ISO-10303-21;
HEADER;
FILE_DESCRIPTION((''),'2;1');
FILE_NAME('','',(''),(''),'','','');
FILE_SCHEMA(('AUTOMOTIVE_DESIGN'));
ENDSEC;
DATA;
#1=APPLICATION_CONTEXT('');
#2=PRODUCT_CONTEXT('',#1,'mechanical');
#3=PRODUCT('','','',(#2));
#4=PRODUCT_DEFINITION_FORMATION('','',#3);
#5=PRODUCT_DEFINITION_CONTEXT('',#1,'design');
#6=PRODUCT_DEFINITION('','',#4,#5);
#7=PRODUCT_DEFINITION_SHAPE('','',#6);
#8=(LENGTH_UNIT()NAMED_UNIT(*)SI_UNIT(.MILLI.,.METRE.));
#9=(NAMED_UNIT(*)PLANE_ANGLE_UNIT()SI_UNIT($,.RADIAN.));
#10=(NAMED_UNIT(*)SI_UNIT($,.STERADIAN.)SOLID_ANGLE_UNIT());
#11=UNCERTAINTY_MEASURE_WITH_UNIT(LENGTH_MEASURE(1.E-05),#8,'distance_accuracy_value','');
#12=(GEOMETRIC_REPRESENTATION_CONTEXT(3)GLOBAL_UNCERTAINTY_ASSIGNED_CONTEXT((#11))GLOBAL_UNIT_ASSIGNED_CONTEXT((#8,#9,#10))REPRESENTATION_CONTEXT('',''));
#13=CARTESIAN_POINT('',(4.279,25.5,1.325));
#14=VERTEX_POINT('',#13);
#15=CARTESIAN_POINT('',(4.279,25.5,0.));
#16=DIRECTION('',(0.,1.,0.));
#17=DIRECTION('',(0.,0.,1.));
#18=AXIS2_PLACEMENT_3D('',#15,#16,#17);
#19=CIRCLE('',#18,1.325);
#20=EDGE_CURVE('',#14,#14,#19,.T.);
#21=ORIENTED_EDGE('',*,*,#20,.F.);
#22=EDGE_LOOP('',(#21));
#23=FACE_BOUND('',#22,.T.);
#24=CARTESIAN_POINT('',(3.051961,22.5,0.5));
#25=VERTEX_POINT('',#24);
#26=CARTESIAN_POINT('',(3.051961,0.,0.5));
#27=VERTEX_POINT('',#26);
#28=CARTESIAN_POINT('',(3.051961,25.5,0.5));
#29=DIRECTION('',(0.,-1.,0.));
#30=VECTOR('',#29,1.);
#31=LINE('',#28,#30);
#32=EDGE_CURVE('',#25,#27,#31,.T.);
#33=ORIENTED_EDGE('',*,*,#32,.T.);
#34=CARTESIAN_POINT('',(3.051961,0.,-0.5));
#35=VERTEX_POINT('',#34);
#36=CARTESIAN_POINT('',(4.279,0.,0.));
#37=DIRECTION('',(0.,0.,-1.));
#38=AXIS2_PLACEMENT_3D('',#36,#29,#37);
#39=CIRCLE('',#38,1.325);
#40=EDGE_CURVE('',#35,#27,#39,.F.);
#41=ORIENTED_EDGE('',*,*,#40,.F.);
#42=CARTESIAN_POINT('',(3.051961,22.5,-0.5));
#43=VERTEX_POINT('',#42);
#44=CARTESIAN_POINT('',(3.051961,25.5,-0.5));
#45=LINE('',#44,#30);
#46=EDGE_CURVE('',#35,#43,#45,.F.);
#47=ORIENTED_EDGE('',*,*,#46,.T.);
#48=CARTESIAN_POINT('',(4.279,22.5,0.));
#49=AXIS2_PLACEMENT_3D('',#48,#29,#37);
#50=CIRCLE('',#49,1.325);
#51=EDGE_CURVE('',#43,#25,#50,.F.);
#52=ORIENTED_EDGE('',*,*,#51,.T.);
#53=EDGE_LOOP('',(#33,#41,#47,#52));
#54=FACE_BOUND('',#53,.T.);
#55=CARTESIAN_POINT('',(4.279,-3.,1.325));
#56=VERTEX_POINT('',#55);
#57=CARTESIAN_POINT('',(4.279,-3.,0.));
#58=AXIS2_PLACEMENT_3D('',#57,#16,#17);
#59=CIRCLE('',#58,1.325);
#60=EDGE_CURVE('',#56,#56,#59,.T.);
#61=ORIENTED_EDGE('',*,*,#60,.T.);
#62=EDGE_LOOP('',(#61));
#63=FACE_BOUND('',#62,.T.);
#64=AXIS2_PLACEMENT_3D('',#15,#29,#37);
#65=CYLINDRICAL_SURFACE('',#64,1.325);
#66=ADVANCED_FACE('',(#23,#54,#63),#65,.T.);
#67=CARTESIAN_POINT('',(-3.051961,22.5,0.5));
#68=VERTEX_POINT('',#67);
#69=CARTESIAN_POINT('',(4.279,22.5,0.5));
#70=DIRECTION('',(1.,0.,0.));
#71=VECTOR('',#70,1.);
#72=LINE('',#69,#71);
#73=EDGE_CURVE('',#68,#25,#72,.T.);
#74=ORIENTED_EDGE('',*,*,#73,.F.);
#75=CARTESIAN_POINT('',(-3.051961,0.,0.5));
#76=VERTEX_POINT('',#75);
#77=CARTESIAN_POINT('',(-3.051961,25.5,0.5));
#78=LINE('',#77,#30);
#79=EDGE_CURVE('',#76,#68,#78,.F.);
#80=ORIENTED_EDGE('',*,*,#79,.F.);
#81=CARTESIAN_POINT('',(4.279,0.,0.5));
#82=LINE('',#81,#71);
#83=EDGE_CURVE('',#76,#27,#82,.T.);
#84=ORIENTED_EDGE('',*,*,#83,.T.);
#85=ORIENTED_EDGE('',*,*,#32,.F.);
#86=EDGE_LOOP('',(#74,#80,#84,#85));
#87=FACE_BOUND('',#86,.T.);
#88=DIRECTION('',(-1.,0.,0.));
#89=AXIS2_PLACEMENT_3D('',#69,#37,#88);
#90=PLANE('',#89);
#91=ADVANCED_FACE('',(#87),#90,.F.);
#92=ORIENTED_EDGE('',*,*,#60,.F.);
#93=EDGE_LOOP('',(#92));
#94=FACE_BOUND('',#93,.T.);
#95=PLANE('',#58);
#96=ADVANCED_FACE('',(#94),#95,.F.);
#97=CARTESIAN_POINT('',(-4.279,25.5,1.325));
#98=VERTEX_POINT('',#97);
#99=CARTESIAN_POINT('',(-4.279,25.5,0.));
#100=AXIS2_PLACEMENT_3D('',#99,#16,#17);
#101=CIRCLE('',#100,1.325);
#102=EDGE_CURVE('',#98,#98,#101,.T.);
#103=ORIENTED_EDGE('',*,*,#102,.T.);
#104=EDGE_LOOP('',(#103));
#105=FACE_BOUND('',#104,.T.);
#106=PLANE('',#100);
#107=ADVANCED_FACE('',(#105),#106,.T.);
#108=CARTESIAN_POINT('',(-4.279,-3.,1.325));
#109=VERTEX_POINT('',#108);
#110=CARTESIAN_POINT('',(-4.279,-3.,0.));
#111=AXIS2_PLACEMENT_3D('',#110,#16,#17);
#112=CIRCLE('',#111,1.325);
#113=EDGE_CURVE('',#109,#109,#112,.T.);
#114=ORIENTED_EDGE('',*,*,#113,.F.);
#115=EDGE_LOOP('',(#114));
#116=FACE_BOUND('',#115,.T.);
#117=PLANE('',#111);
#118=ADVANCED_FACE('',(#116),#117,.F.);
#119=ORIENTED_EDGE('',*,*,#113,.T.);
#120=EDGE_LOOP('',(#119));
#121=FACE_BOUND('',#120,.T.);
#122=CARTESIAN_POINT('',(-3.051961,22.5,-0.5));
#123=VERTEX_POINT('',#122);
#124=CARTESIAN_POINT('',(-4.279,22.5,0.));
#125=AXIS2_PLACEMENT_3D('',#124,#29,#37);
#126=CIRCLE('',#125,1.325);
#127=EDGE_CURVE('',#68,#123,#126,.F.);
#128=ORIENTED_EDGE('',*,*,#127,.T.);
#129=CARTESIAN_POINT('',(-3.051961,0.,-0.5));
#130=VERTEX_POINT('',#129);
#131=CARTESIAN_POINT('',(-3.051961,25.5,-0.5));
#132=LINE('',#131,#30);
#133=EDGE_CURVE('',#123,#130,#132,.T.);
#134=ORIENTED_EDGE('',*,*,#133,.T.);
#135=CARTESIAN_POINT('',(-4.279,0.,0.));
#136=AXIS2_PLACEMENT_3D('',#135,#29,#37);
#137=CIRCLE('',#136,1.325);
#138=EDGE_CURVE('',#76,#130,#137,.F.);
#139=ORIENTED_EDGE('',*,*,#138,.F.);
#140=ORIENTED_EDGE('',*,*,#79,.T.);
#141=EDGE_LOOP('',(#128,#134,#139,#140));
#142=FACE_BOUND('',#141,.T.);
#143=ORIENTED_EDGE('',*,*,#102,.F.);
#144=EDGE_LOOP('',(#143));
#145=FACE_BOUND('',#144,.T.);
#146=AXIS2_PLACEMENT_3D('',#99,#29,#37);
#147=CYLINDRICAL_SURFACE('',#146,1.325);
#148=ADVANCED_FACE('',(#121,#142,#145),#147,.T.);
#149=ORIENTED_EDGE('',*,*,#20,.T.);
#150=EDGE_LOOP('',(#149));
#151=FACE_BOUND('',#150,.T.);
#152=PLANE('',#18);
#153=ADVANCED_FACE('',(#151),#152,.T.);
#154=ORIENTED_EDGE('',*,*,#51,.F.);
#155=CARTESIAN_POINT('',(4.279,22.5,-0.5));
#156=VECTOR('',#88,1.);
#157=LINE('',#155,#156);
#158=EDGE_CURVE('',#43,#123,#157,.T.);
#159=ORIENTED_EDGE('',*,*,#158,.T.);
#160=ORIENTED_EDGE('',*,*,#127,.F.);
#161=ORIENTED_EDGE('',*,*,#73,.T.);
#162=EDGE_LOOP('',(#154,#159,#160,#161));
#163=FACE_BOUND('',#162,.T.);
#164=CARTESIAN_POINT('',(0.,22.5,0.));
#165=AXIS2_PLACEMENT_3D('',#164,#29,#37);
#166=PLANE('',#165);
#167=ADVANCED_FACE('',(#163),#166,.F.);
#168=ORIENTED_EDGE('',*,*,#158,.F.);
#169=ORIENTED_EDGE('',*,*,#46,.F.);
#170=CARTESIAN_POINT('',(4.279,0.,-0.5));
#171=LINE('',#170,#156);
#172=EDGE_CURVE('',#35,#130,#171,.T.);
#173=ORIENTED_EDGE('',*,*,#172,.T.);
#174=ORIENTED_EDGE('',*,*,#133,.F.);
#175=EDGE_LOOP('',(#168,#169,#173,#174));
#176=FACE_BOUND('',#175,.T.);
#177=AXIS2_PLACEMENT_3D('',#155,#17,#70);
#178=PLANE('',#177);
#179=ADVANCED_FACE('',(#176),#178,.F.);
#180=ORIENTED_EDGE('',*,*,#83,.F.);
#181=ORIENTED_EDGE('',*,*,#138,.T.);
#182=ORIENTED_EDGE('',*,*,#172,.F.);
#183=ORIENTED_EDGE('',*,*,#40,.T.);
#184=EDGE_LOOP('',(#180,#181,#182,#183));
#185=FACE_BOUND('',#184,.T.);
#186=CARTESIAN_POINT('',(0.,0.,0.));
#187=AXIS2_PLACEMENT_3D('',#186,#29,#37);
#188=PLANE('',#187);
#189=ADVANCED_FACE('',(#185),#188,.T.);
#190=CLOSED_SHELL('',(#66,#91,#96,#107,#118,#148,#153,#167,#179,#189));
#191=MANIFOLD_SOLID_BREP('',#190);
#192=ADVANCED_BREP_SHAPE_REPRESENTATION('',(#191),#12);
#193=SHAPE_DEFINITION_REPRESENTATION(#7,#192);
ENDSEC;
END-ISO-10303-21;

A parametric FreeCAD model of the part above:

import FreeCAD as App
import Part
import Sketcher

V = App.Vector
Q = App.Units.Quantity

doc = App.newDocument("Part")
body = doc.addObject("PartDesign::Body", "Body")

sketch1 = body.newObject("Sketcher::SketchObject", "Sketch")
sketch1.AttachmentSupport = (doc.getObject("XZ_Plane"), [""])
sketch1.MapMode = "FlatFace"
sketch1.addGeometry(Part.LineSegment(V(-4.3, -0.5, 0), V(-4.3, 0.5, 0)), False)
sketch1.addGeometry(Part.LineSegment(V(-4.3, 0.5, 0), V(4.3, 0.5, 0)), False)
sketch1.addGeometry(Part.LineSegment(V(4.3, 0.5, 0), V(4.3, -0.5, 0)), False)
sketch1.addGeometry(Part.LineSegment(V(4.3, -0.5, 0), V(-4.3, -0.5, 0)), False)
sketch1.addConstraint(Sketcher.Constraint("Coincident", 0, 2, 1, 1))
sketch1.addConstraint(Sketcher.Constraint("Coincident", 1, 2, 2, 1))
sketch1.addConstraint(Sketcher.Constraint("Coincident", 2, 2, 3, 1))
sketch1.addConstraint(Sketcher.Constraint("Coincident", 3, 2, 0, 1))
sketch1.addConstraint(Sketcher.Constraint("Vertical", 0))
sketch1.addConstraint(Sketcher.Constraint("Horizontal", 1))
sketch1.addConstraint(Sketcher.Constraint("Vertical", 2))
sketch1.addConstraint(Sketcher.Constraint("Horizontal", 3))
sketch1.addConstraint(Sketcher.Constraint("Symmetric", 0, 2, 2, 2, -1, 1))
sketch1.addConstraint(Sketcher.Constraint("DistanceY", 0, 1, 0, 2, Q("1 mm")))
sketch1.addConstraint(Sketcher.Constraint("DistanceX", 1, 1, 1, 2, Q("8.558 mm")))
pad1 = body.newObject("PartDesign::Pad", "Pad")
pad1.Profile = sketch1
pad1.Length = 22.5
pad1.Reversed = True

sketch2 = body.newObject("Sketcher::SketchObject", "Sketch001")
sketch2.AttachmentSupport = (doc.getObject("XZ_Plane"), [""])
sketch2.MapMode = "FlatFace"
sketch2.AttachmentOffset = App.Placement(V(0, 0, -11.25), App.Rotation())
sketch2.addGeometry(Part.Circle(V(-4.3, 0, 0), V(0, 0, 1), 1.3), False)
sketch2.addGeometry(Part.Circle(V(4.3, 0, 0), V(0, 0, 1), 1.3), False)
sketch2.addConstraint(Sketcher.Constraint("Equal", 0, 1))
sketch2.addConstraint(Sketcher.Constraint("Symmetric", 0, 3, 1, 3, -1, 1))
sketch2.addConstraint(Sketcher.Constraint("PointOnObject", 0, 3, -1))
sketch2.addConstraint(Sketcher.Constraint("Diameter", 0, Q("2.65 mm")))
sketch2.addConstraint(Sketcher.Constraint("DistanceX", 0, 3, -1, 1, Q("4.279 mm")))
pad2 = body.newObject("PartDesign::Pad", "Pad001")
pad2.Profile = sketch2
pad2.Length = 28.5
pad2.Midplane = True

doc.recompute()
